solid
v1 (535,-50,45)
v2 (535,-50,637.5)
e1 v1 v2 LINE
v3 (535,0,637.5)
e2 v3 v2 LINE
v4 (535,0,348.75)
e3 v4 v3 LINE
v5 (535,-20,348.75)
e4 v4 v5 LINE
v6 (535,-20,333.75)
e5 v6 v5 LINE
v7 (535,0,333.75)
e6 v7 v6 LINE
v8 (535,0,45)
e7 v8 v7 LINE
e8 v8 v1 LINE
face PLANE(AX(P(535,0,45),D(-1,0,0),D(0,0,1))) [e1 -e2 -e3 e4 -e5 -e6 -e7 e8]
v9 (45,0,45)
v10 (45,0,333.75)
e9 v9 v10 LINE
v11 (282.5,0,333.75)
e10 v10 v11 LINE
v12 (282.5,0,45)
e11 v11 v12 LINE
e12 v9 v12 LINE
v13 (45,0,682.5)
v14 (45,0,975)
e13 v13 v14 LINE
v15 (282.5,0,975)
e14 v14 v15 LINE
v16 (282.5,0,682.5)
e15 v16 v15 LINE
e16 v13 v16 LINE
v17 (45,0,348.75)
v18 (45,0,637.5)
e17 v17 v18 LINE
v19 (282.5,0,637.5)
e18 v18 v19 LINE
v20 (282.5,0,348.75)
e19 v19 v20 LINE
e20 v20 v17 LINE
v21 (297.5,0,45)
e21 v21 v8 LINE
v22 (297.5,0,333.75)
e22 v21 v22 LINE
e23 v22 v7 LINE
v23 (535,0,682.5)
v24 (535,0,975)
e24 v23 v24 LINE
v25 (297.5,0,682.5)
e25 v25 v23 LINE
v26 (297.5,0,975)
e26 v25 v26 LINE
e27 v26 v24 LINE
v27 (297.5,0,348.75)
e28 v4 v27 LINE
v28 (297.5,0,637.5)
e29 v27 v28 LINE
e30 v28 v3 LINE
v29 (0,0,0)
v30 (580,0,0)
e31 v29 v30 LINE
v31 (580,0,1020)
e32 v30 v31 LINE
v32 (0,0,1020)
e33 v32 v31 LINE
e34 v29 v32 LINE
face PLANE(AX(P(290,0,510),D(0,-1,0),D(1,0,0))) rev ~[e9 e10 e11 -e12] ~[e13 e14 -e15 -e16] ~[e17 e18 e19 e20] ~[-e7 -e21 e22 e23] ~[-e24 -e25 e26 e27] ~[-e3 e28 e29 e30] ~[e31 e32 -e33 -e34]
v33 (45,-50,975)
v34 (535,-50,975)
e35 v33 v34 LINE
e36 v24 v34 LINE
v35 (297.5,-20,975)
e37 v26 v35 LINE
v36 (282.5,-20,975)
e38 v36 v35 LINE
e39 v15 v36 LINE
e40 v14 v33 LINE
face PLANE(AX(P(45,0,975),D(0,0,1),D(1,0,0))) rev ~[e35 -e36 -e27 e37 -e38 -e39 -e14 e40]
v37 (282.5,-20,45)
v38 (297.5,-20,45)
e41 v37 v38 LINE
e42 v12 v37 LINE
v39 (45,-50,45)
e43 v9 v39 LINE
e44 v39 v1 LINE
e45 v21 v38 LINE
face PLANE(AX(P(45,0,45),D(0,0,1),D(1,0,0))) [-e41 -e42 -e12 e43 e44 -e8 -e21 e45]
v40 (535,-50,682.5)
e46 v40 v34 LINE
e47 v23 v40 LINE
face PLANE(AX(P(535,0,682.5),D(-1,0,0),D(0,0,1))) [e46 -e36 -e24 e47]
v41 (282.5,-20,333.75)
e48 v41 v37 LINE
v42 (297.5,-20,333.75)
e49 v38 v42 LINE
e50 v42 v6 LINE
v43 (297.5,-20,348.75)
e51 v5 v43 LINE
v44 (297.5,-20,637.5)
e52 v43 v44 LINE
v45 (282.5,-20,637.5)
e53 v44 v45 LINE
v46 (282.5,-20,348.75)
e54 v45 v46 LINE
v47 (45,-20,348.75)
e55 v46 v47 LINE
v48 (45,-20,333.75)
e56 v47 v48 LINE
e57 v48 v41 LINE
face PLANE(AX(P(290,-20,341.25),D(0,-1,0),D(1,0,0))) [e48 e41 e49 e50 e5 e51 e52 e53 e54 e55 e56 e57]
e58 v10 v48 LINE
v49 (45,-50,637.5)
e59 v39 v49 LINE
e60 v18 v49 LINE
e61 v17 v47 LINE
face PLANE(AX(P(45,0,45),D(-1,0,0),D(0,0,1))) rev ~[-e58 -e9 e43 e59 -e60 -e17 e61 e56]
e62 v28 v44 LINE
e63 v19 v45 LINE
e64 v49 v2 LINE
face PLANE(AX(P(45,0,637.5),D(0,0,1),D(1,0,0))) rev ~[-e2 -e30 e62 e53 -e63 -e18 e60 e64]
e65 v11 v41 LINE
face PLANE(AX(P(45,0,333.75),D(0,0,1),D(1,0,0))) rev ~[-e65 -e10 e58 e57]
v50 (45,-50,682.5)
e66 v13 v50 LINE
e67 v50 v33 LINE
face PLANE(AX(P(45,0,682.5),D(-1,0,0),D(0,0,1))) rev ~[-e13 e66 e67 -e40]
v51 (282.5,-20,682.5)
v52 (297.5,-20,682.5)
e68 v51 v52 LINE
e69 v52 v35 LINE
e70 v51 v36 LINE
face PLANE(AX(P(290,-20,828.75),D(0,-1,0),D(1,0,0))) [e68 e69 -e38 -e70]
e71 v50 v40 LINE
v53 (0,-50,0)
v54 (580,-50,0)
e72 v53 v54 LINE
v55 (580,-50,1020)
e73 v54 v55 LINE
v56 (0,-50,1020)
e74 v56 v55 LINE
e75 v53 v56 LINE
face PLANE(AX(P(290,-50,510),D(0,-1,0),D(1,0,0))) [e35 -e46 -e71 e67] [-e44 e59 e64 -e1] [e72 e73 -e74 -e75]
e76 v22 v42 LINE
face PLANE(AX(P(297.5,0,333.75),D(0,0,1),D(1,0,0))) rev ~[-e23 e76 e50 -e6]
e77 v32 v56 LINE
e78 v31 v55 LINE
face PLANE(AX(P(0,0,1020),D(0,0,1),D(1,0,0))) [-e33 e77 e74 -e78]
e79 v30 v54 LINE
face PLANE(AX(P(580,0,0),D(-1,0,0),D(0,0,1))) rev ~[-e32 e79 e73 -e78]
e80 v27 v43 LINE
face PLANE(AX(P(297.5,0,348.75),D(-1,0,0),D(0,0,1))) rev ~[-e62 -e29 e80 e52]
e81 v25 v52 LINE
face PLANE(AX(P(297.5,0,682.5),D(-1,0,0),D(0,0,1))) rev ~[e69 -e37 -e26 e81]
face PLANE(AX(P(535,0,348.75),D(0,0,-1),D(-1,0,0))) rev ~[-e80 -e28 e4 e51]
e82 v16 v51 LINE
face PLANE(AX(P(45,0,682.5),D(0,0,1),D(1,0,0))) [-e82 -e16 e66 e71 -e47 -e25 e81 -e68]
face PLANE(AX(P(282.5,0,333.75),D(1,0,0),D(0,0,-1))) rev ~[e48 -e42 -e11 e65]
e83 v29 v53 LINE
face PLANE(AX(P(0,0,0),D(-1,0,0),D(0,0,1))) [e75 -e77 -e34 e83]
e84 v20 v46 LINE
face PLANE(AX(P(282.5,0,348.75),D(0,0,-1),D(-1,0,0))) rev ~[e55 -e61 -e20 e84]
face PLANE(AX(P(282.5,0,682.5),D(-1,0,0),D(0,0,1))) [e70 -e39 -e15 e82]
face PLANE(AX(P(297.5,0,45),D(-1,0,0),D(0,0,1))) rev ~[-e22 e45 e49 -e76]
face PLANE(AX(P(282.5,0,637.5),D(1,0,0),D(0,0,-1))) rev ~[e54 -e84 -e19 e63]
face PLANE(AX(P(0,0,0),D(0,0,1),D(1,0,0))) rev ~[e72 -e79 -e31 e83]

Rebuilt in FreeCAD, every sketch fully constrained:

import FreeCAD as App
import Part
import Sketcher

V = App.Vector
Q = App.Units.Quantity

doc = App.newDocument("Part")
body = doc.addObject("PartDesign::Body", "Body")

# Sketch on XZ plane
sketch1 = doc.addObject("Sketcher::SketchObject", "Sketch")
body.addObject(sketch1)
sketch1.AttachmentSupport = (doc.XZ_Plane, [""])
sketch1.MapMode = "FlatFace"
sketch1.addGeometry(Part.LineSegment(V(0, 1020, 0), V(0, 0, 0)), False)
sketch1.addGeometry(Part.LineSegment(V(0, 0, 0), V(580, 0, 0)), False)
sketch1.addGeometry(Part.LineSegment(V(580, 0, 0), V(580, 1020, 0)), False)
sketch1.addGeometry(Part.LineSegment(V(580, 1020, 0), V(0, 1020, 0)), False)
sketch1.addGeometry(Part.LineSegment(V(535, 45, 0), V(45, 45, 0)), False)
sketch1.addGeometry(Part.LineSegment(V(45, 45, 0), V(45, 638, 0)), False)
sketch1.addGeometry(Part.LineSegment(V(45, 638, 0), V(535, 638, 0)), False)
sketch1.addGeometry(Part.LineSegment(V(535, 638, 0), V(535, 45, 0)), False)
sketch1.addGeometry(Part.LineSegment(V(535, 682, 0), V(45, 682, 0)), False)
sketch1.addGeometry(Part.LineSegment(V(45, 682, 0), V(45, 975, 0)), False)
sketch1.addGeometry(Part.LineSegment(V(45, 975, 0), V(535, 975, 0)), False)
sketch1.addGeometry(Part.LineSegment(V(535, 975, 0), V(535, 682, 0)), False)
sketch1.addConstraint(Sketcher.Constraint("Coincident", 0, 2, 1, 1))
sketch1.addConstraint(Sketcher.Constraint("Coincident", 1, 2, 2, 1))
sketch1.addConstraint(Sketcher.Constraint("Coincident", 2, 2, 3, 1))
sketch1.addConstraint(Sketcher.Constraint("Coincident", 3, 2, 0, 1))
sketch1.addConstraint(Sketcher.Constraint("Coincident", 4, 2, 5, 1))
sketch1.addConstraint(Sketcher.Constraint("Coincident", 5, 2, 6, 1))
sketch1.addConstraint(Sketcher.Constraint("Coincident", 6, 2, 7, 1))
sketch1.addConstraint(Sketcher.Constraint("Coincident", 7, 2, 4, 1))
sketch1.addConstraint(Sketcher.Constraint("Coincident", 8, 2, 9, 1))
sketch1.addConstraint(Sketcher.Constraint("Coincident", 9, 2, 10, 1))
sketch1.addConstraint(Sketcher.Constraint("Coincident", 10, 2, 11, 1))
sketch1.addConstraint(Sketcher.Constraint("Coincident", 11, 2, 8, 1))
sketch1.addConstraint(Sketcher.Constraint("Vertical", 0))
sketch1.addConstraint(Sketcher.Constraint("Horizontal", 1))
sketch1.addConstraint(Sketcher.Constraint("Vertical", 2))
sketch1.addConstraint(Sketcher.Constraint("Horizontal", 3))
sketch1.addConstraint(Sketcher.Constraint("Horizontal", 4))
sketch1.addConstraint(Sketcher.Constraint("Vertical", 5))
sketch1.addConstraint(Sketcher.Constraint("Horizontal", 6))
sketch1.addConstraint(Sketcher.Constraint("Vertical", 7))
sketch1.addConstraint(Sketcher.Constraint("Horizontal", 8))
sketch1.addConstraint(Sketcher.Constraint("Vertical", 9))
sketch1.addConstraint(Sketcher.Constraint("Horizontal", 10))
sketch1.addConstraint(Sketcher.Constraint("Vertical", 11))
sketch1.addConstraint(Sketcher.Constraint("Coincident", 0, 2, -1, 1))
sketch1.addConstraint(Sketcher.Constraint("Vertical", 5, 2, 8, 2))
sketch1.addConstraint(Sketcher.Constraint("Vertical", 7, 2, 10, 2))
sketch1.addConstraint(Sketcher.Constraint("DistanceX", 1, 1, 1, 2, Q("580 mm")))
sketch1.addConstraint(Sketcher.Constraint("DistanceX", 4, 2, 4, 1, Q("490 mm")))
sketch1.addConstraint(Sketcher.Constraint("DistanceY", 0, 2, 0, 1, Q("1020 mm")))
sketch1.addConstraint(Sketcher.Constraint("DistanceY", 5, 1, 5, 2, Q("592.5 mm")))
sketch1.addConstraint(Sketcher.Constraint("DistanceY", 9, 1, 9, 2, Q("292.5 mm")))
sketch1.addConstraint(Sketcher.Constraint("DistanceX", -1, 1, 4, 2, Q("45 mm")))
sketch1.addConstraint(Sketcher.Constraint("DistanceY", -1, 1, 4, 2, Q("45 mm")))
sketch1.addConstraint(Sketcher.Constraint("DistanceY", -1, 1, 9, 2, Q("975 mm")))
pad1 = doc.addObject("PartDesign::Pad", "Pad")
body.addObject(pad1)
pad1.Profile = sketch1
pad1.Length = 50

# Sketch on XZ plane
sketch2 = doc.addObject("Sketcher::SketchObject", "Sketch001")
body.addObject(sketch2)
sketch2.AttachmentSupport = (doc.XZ_Plane, [""])
sketch2.MapMode = "FlatFace"
sketch2.addGeometry(Part.LineSegment(V(282, 975, 0), V(282, 682, 0)), False)
sketch2.addGeometry(Part.LineSegment(V(282, 682, 0), V(298, 682, 0)), False)
sketch2.addGeometry(Part.LineSegment(V(298, 682, 0), V(298, 975, 0)), False)
sketch2.addGeometry(Part.LineSegment(V(298, 975, 0), V(282, 975, 0)), False)
sketch2.addGeometry(Part.LineSegment(V(298, 638, 0), V(282, 638, 0)), False)
sketch2.addGeometry(Part.LineSegment(V(282, 638, 0), V(282, 349, 0)), False)
sketch2.addGeometry(Part.LineSegment(V(282, 349, 0), V(45, 349, 0)), False)
sketch2.addGeometry(Part.LineSegment(V(45, 349, 0), V(45, 334, 0)), False)
sketch2.addGeometry(Part.LineSegment(V(45, 334, 0), V(282, 334, 0)), False)
sketch2.addGeometry(Part.LineSegment(V(282, 334, 0), V(282, 45, 0)), False)
sketch2.addGeometry(Part.LineSegment(V(282, 45, 0), V(298, 45, 0)), False)
sketch2.addGeometry(Part.LineSegment(V(298, 45, 0), V(298, 334, 0)), False)
sketch2.addGeometry(Part.LineSegment(V(298, 334, 0), V(535, 334, 0)), False)
sketch2.addGeometry(Part.LineSegment(V(535, 334, 0), V(535, 349, 0)), False)
sketch2.addGeometry(Part.LineSegment(V(535, 349, 0), V(298, 349, 0)), False)
sketch2.addGeometry(Part.LineSegment(V(298, 349, 0), V(298, 638, 0)), False)
sketch2.addConstraint(Sketcher.Constraint("Coincident", 0, 2, 1, 1))
sketch2.addConstraint(Sketcher.Constraint("Coincident", 1, 2, 2, 1))
sketch2.addConstraint(Sketcher.Constraint("Coincident", 2, 2, 3, 1))
sketch2.addConstraint(Sketcher.Constraint("Coincident", 3, 2, 0, 1))
sketch2.addConstraint(Sketcher.Constraint("Coincident", 4, 2, 5, 1))
sketch2.addConstraint(Sketcher.Constraint("Coincident", 5, 2, 6, 1))
sketch2.addConstraint(Sketcher.Constraint("Coincident", 6, 2, 7, 1))
sketch2.addConstraint(Sketcher.Constraint("Coincident", 7, 2, 8, 1))
sketch2.addConstraint(Sketcher.Constraint("Coincident", 8, 2, 9, 1))
sketch2.addConstraint(Sketcher.Constraint("Coincident", 9, 2, 10, 1))
sketch2.addConstraint(Sketcher.Constraint("Coincident", 10, 2, 11, 1))
sketch2.addConstraint(Sketcher.Constraint("Coincident", 11, 2, 12, 1))
sketch2.addConstraint(Sketcher.Constraint("Coincident", 12, 2, 13, 1))
sketch2.addConstraint(Sketcher.Constraint("Coincident", 13, 2, 14, 1))
sketch2.addConstraint(Sketcher.Constraint("Coincident", 14, 2, 15, 1))
sketch2.addConstraint(Sketcher.Constraint("Coincident", 15, 2, 4, 1))
sketch2.addConstraint(Sketcher.Constraint("Vertical", 0))
sketch2.addConstraint(Sketcher.Constraint("Horizontal", 1))
sketch2.addConstraint(Sketcher.Constraint("Vertical", 2))
sketch2.addConstraint(Sketcher.Constraint("Horizontal", 3))
sketch2.addConstraint(Sketcher.Constraint("Horizontal", 4))
sketch2.addConstraint(Sketcher.Constraint("Vertical", 5))
sketch2.addConstraint(Sketcher.Constraint("Horizontal", 6))
sketch2.addConstraint(Sketcher.Constraint("Vertical", 7))
sketch2.addConstraint(Sketcher.Constraint("Horizontal", 8))
sketch2.addConstraint(Sketcher.Constraint("Vertical", 9))
sketch2.addConstraint(Sketcher.Constraint("Horizontal", 10))
sketch2.addConstraint(Sketcher.Constraint("Vertical", 11))
sketch2.addConstraint(Sketcher.Constraint("Horizontal", 12))
sketch2.addConstraint(Sketcher.Constraint("Vertical", 13))
sketch2.addConstraint(Sketcher.Constraint("Horizontal", 14))
sketch2.addConstraint(Sketcher.Constraint("Vertical", 15))
sketch2.addConstraint(Sketcher.Constraint("Horizontal", 8, 2, 11, 2))
sketch2.addConstraint(Sketcher.Constraint("Horizontal", 6, 2, 13, 2))
sketch2.addConstraint(Sketcher.Constraint("Vertical", 3, 2, 4, 2))
sketch2.addConstraint(Sketcher.Constraint("Vertical", 5, 2, 8, 2))
sketch2.addConstraint(Sketcher.Constraint("Vertical", 2, 2, 10, 2))
sketch2.addConstraint(Sketcher.Constraint("Vertical", 11, 2, 14, 2))
sketch2.addConstraint(Sketcher.Constraint("Equal", 8, 12))
sketch2.addConstraint(Sketcher.Constraint("Equal", 10, 7))
sketch2.addConstraint(Sketcher.Constraint("Equal", 5, 9))
sketch2.addConstraint(Sketcher.Constraint("DistanceX", 1, 1, 1, 2, Q("15 mm")))
sketch2.addConstraint(Sketcher.Constraint("DistanceX", 6, 2, 6, 1, Q("237.5 mm")))
sketch2.addConstraint(Sketcher.Constraint("DistanceY", 0, 2, 0, 1, Q("292.5 mm")))
sketch2.addConstraint(Sketcher.Constraint("DistanceY", -1, 1, 2, 2, Q("975 mm")))
sketch2.addConstraint(Sketcher.Constraint("DistanceX", -1, 1, 6, 2, Q("45 mm")))
sketch2.addConstraint(Sketcher.Constraint("DistanceY", -1, 1, 9, 2, Q("45 mm")))
sketch2.addConstraint(Sketcher.Constraint("DistanceY", 4, 2, 0, 2, Q("45 mm")))
pad2 = doc.addObject("PartDesign::Pad", "Pad001")
body.addObject(pad2)
pad2.Profile = sketch2
pad2.Length = 20

doc.recompute()
